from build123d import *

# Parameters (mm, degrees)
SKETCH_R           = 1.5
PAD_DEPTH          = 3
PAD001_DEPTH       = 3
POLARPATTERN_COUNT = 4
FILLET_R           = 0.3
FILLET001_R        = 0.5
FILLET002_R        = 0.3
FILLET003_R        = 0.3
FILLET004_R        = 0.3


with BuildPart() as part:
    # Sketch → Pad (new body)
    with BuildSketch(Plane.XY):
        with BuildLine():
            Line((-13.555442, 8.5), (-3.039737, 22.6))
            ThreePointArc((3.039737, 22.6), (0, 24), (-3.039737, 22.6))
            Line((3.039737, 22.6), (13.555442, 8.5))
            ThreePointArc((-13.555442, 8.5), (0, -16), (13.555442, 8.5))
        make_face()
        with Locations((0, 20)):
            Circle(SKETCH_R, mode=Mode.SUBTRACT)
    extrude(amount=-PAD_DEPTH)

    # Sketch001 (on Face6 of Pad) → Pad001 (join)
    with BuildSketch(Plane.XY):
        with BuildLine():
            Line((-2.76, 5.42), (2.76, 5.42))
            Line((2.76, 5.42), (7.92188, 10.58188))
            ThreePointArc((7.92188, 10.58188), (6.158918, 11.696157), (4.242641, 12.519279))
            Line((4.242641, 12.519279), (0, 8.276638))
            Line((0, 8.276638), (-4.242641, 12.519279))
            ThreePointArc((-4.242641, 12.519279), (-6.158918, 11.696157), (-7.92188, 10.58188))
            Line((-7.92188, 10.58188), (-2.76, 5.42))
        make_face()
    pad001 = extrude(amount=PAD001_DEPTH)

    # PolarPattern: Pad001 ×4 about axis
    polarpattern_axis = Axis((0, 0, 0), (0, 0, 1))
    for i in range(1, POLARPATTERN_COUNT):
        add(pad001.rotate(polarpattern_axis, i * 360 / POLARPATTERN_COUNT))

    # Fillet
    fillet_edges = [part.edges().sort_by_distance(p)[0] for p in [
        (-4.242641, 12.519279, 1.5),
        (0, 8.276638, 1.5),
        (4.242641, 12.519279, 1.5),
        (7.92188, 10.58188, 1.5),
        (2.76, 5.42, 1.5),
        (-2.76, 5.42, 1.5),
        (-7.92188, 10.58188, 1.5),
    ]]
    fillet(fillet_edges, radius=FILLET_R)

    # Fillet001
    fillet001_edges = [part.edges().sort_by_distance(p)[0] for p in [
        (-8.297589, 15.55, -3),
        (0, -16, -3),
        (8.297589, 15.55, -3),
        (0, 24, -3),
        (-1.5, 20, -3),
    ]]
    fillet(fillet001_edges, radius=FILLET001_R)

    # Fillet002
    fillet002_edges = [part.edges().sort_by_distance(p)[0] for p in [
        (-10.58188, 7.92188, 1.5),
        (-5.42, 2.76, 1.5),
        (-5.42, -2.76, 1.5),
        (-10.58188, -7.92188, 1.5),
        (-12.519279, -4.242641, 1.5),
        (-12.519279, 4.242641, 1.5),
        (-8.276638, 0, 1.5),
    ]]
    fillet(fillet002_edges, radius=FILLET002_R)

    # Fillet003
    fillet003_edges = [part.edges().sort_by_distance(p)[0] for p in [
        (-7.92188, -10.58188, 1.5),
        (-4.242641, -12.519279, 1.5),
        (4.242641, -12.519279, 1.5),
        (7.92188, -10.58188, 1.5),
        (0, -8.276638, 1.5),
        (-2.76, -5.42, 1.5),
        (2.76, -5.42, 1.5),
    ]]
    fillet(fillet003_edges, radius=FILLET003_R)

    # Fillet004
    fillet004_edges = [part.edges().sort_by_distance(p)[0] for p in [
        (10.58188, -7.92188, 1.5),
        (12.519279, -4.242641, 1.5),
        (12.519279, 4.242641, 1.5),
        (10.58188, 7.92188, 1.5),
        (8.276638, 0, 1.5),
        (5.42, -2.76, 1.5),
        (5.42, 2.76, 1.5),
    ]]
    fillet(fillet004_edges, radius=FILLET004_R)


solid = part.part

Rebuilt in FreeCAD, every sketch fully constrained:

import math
import FreeCAD as App
import Part
import Sketcher
Q = App.Units.Quantity


def edges_at(feature, points):
    """Names of the edges that pass closest to the given points."""
    edges = feature.Shape.Edges
    near = lambda p: min(range(len(edges)), key=lambda i: edges[i].distToShape(Part.Vertex(*p))[0])
    return sorted({f"Edge{near(p) + 1}" for p in points})

doc = App.newDocument("Part")
params = doc.addObject("Spreadsheet::Sheet", "Params")
for row, (alias, value) in enumerate([
    ("sketch1_diameter", "3 mm"),
    ("sketch1_radius", "16 mm"),
    ("sketch1_radius2", "4 mm"),
    ("pad1_length", "3 mm"),
    ("sketch2_length", "6 mm"),
    ("sketch2_length2", "7.300001 mm"),
    ("sketch2_width", "5.52 mm"),
    ("pad2_length", "3 mm"),
    ("fillet_radius", "0.3 mm"),
    ("fillet2_radius", "0.5 mm"),
    ("fillet3_radius", "0.3 mm"),
    ("fillet4_radius", "0.3 mm"),
    ("fillet5_radius", "0.3 mm"),
], start=1):
    params.set(f"A{row}", alias)
    params.set(f"B{row}", "=" + value)
    params.setAlias(f"B{row}", alias)

body = doc.addObject("PartDesign::Body", "Body")

# Sketch on XY plane
sketch1 = body.newObject("Sketcher::SketchObject", "Sketch")
sketch1.AttachmentSupport = (doc.getObject("XY_Plane"), [""])
sketch1.MapMode = "FlatFace"
sketch1.addGeometry([
    Part.LineSegment(App.Vector(-3.039737, 22.6, 0), App.Vector(-13.555442, 8.5, 0)),  # 0
    Part.ArcOfCircle(Part.Circle(App.Vector(0, 0, 0), App.Vector(0, 0, 1), 16), math.radians(147.91005), math.radians(392.08995)),  # 1
    Part.LineSegment(App.Vector(13.555442, 8.5, 0), App.Vector(3.039737, 22.6, 0)),  # 2
    Part.ArcOfCircle(Part.Circle(App.Vector(0, 20, 0), App.Vector(0, 0, 1), 4), math.radians(40.541604), math.radians(139.458396)),  # 3
    Part.Circle(App.Vector(0, 20, 0), App.Vector(0, 0, 1), 1.5),  # 4
], False)
sketch1.addConstraint([
    Sketcher.Constraint("Coincident", 0, 2, 1, 1),
    Sketcher.Constraint("Coincident", 1, 2, 2, 1),
    Sketcher.Constraint("Coincident", 2, 2, 3, 1),
    Sketcher.Constraint("Coincident", 3, 2, 0, 1),
    Sketcher.Constraint("Coincident", 1, 3, -1, 1),
    Sketcher.Constraint("Coincident", 4, 3, 3, 3),
    Sketcher.Constraint("Symmetric", 2, 2, 3, 2, -2),
    Sketcher.Constraint("Horizontal", 0, 2, 1, 2),
    Sketcher.Constraint("Diameter", 4, Q("3 mm")),
    Sketcher.Constraint("Radius", 1, Q("16 mm")),
    Sketcher.Constraint("Radius", 3, Q("4 mm")),
    Sketcher.Constraint("DistanceY", -1, 1, 3, 3, Q("20 mm")),
    Sketcher.Constraint("DistanceY", -1, 1, 0, 2, Q("8.5 mm")),
    Sketcher.Constraint("DistanceY", -1, 1, 2, 2, Q("22.6 mm")),
])
sketch1.setExpression("Constraints[8]", "Params.sketch1_diameter")
sketch1.setExpression("Constraints[9]", "Params.sketch1_radius")
sketch1.setExpression("Constraints[10]", "Params.sketch1_radius2")
pad1 = body.newObject("PartDesign::Pad", "Pad")
pad1.Profile = sketch1
pad1.setExpression("Length", "Params.pad1_length")
pad1.Reversed = True

# Sketch on XY plane
sketch2 = body.newObject("Sketcher::SketchObject", "Sketch001")
sketch2.AttachmentSupport = (doc.getObject("XY_Plane"), [""])
sketch2.MapMode = "FlatFace"
sketch2.addGeometry([
    Part.LineSegment(App.Vector(-2.76, 5.42, 0), App.Vector(2.76, 5.42, 0)),  # 0
    Part.LineSegment(App.Vector(2.76, 5.42, 0), App.Vector(7.92188, 10.58188, 0)),  # 1
    Part.ArcOfCircle(Part.Circle(App.Vector(0.000004, 0.000002, 0), App.Vector(0, 0, 1), 13.218633), math.radians(53.180493), math.radians(71.279078)),  # 2
    Part.LineSegment(App.Vector(4.242641, 12.519279, 0), App.Vector(0, 8.276638, 0)),  # 3
    Part.LineSegment(App.Vector(0, 8.276638, 0), App.Vector(-4.242641, 12.519279, 0)),  # 4
    Part.ArcOfCircle(Part.Circle(App.Vector(-0.000004, 0.000002, 0), App.Vector(0, 0, 1), 13.218633), math.radians(108.720922), math.radians(126.819507)),  # 5
    Part.LineSegment(App.Vector(-7.92188, 10.58188, 0), App.Vector(-2.76, 5.42, 0)),  # 6
], False)
sketch2.addConstraint([
    Sketcher.Constraint("Coincident", 0, 2, 1, 1),
    Sketcher.Constraint("Coincident", 1, 2, 2, 1),
    Sketcher.Constraint("Coincident", 2, 2, 3, 1),
    Sketcher.Constraint("Coincident", 3, 2, 4, 1),
    Sketcher.Constraint("Coincident", 4, 2, 5, 1),
    Sketcher.Constraint("Coincident", 5, 2, 6, 1),
    Sketcher.Constraint("Coincident", 6, 2, 0, 1),
    Sketcher.Constraint("Horizontal", 0),
    Sketcher.Constraint("Coincident", 2, 3, -1, 1),
    Sketcher.Constraint("Coincident", 5, 3, -1, 1),
    Sketcher.Constraint("Equal", 2, 5),
    Sketcher.Constraint("PointOnObject", 3, 2, -2),
    Sketcher.Constraint("Parallel", 1, 3),
    Sketcher.Constraint("Perpendicular", 3, 4),
    Sketcher.Constraint("Parallel", 4, 6),
    Sketcher.Constraint("Horizontal", 2, 2, 4, 2),
    Sketcher.Constraint("Horizontal", 1, 2, 5, 2),
    Sketcher.Constraint("Distance", 3, Q("6 mm")),
    Sketcher.Constraint("Distance", 1, Q("7.300001 mm")),
    Sketcher.Constraint("DistanceX", 0, 1, 0, 2, Q("5.52 mm")),
    Sketcher.Constraint("DistanceY", -1, 1, 0, 2, Q("5.42 mm")),
])
sketch2.setExpression("Constraints[17]", "Params.sketch2_length")
sketch2.setExpression("Constraints[18]", "Params.sketch2_length2")
sketch2.setExpression("Constraints[19]", "Params.sketch2_width")
pad2 = body.newObject("PartDesign::Pad", "Pad001")
pad2.Profile = sketch2
pad2.setExpression("Length", "Params.pad2_length")
doc.recompute()

polarpattern = body.newObject("PartDesign::PolarPattern", "PolarPattern")
polarpattern.Originals = [pad2]
polarpattern.Axis = (doc.getObject("Z_Axis"), [""])
polarpattern.Angle = 360
polarpattern.Occurrences = 4
body.Tip = polarpattern
doc.recompute()

fillet = body.newObject("PartDesign::Fillet", "Fillet")
fillet.Base = (polarpattern, edges_at(polarpattern, [
    (-4.243, 12.519, 1.5),
    (0, 8.277, 1.5),
    (4.243, 12.519, 1.5),
    (7.922, 10.582, 1.5),
    (2.76, 5.42, 1.5),
    (-2.76, 5.42, 1.5),
    (-7.922, 10.582, 1.5),
]))
fillet.setExpression("Radius", "Params.fillet_radius")
doc.recompute()

fillet2 = body.newObject("PartDesign::Fillet", "Fillet001")
fillet2.Base = (fillet, edges_at(fillet, [
    (-8.298, 15.55, -3),
    (0, -16, -3),
    (8.298, 15.55, -3),
    (0, 24, -3),
    (-1.5, 20, -3),
]))
fillet2.setExpression("Radius", "Params.fillet2_radius")
doc.recompute()

fillet3 = body.newObject("PartDesign::Fillet", "Fillet002")
fillet3.Base = (fillet2, edges_at(fillet2, [
    (-10.582, 7.922, 1.5),
    (-5.42, 2.76, 1.5),
    (-5.42, -2.76, 1.5),
    (-10.582, -7.922, 1.5),
    (-12.519, -4.243, 1.5),
    (-12.519, 4.243, 1.5),
    (-8.277, 0, 1.5),
]))
fillet3.setExpression("Radius", "Params.fillet3_radius")
doc.recompute()

fillet4 = body.newObject("PartDesign::Fillet", "Fillet003")
fillet4.Base = (fillet3, edges_at(fillet3, [
    (-7.922, -10.582, 1.5),
    (-4.243, -12.519, 1.5),
    (4.243, -12.519, 1.5),
    (7.922, -10.582, 1.5),
    (0, -8.277, 1.5),
    (-2.76, -5.42, 1.5),
    (2.76, -5.42, 1.5),
]))
fillet4.setExpression("Radius", "Params.fillet4_radius")
doc.recompute()

fillet5 = body.newObject("PartDesign::Fillet", "Fillet004")
fillet5.Base = (fillet4, edges_at(fillet4, [
    (10.582, -7.922, 1.5),
    (12.519, -4.243, 1.5),
    (12.519, 4.243, 1.5),
    (10.582, 7.922, 1.5),
    (8.277, 0, 1.5),
    (5.42, -2.76, 1.5),
    (5.42, 2.76, 1.5),
]))
fillet5.setExpression("Radius", "Params.fillet5_radius")

doc.recompute()
